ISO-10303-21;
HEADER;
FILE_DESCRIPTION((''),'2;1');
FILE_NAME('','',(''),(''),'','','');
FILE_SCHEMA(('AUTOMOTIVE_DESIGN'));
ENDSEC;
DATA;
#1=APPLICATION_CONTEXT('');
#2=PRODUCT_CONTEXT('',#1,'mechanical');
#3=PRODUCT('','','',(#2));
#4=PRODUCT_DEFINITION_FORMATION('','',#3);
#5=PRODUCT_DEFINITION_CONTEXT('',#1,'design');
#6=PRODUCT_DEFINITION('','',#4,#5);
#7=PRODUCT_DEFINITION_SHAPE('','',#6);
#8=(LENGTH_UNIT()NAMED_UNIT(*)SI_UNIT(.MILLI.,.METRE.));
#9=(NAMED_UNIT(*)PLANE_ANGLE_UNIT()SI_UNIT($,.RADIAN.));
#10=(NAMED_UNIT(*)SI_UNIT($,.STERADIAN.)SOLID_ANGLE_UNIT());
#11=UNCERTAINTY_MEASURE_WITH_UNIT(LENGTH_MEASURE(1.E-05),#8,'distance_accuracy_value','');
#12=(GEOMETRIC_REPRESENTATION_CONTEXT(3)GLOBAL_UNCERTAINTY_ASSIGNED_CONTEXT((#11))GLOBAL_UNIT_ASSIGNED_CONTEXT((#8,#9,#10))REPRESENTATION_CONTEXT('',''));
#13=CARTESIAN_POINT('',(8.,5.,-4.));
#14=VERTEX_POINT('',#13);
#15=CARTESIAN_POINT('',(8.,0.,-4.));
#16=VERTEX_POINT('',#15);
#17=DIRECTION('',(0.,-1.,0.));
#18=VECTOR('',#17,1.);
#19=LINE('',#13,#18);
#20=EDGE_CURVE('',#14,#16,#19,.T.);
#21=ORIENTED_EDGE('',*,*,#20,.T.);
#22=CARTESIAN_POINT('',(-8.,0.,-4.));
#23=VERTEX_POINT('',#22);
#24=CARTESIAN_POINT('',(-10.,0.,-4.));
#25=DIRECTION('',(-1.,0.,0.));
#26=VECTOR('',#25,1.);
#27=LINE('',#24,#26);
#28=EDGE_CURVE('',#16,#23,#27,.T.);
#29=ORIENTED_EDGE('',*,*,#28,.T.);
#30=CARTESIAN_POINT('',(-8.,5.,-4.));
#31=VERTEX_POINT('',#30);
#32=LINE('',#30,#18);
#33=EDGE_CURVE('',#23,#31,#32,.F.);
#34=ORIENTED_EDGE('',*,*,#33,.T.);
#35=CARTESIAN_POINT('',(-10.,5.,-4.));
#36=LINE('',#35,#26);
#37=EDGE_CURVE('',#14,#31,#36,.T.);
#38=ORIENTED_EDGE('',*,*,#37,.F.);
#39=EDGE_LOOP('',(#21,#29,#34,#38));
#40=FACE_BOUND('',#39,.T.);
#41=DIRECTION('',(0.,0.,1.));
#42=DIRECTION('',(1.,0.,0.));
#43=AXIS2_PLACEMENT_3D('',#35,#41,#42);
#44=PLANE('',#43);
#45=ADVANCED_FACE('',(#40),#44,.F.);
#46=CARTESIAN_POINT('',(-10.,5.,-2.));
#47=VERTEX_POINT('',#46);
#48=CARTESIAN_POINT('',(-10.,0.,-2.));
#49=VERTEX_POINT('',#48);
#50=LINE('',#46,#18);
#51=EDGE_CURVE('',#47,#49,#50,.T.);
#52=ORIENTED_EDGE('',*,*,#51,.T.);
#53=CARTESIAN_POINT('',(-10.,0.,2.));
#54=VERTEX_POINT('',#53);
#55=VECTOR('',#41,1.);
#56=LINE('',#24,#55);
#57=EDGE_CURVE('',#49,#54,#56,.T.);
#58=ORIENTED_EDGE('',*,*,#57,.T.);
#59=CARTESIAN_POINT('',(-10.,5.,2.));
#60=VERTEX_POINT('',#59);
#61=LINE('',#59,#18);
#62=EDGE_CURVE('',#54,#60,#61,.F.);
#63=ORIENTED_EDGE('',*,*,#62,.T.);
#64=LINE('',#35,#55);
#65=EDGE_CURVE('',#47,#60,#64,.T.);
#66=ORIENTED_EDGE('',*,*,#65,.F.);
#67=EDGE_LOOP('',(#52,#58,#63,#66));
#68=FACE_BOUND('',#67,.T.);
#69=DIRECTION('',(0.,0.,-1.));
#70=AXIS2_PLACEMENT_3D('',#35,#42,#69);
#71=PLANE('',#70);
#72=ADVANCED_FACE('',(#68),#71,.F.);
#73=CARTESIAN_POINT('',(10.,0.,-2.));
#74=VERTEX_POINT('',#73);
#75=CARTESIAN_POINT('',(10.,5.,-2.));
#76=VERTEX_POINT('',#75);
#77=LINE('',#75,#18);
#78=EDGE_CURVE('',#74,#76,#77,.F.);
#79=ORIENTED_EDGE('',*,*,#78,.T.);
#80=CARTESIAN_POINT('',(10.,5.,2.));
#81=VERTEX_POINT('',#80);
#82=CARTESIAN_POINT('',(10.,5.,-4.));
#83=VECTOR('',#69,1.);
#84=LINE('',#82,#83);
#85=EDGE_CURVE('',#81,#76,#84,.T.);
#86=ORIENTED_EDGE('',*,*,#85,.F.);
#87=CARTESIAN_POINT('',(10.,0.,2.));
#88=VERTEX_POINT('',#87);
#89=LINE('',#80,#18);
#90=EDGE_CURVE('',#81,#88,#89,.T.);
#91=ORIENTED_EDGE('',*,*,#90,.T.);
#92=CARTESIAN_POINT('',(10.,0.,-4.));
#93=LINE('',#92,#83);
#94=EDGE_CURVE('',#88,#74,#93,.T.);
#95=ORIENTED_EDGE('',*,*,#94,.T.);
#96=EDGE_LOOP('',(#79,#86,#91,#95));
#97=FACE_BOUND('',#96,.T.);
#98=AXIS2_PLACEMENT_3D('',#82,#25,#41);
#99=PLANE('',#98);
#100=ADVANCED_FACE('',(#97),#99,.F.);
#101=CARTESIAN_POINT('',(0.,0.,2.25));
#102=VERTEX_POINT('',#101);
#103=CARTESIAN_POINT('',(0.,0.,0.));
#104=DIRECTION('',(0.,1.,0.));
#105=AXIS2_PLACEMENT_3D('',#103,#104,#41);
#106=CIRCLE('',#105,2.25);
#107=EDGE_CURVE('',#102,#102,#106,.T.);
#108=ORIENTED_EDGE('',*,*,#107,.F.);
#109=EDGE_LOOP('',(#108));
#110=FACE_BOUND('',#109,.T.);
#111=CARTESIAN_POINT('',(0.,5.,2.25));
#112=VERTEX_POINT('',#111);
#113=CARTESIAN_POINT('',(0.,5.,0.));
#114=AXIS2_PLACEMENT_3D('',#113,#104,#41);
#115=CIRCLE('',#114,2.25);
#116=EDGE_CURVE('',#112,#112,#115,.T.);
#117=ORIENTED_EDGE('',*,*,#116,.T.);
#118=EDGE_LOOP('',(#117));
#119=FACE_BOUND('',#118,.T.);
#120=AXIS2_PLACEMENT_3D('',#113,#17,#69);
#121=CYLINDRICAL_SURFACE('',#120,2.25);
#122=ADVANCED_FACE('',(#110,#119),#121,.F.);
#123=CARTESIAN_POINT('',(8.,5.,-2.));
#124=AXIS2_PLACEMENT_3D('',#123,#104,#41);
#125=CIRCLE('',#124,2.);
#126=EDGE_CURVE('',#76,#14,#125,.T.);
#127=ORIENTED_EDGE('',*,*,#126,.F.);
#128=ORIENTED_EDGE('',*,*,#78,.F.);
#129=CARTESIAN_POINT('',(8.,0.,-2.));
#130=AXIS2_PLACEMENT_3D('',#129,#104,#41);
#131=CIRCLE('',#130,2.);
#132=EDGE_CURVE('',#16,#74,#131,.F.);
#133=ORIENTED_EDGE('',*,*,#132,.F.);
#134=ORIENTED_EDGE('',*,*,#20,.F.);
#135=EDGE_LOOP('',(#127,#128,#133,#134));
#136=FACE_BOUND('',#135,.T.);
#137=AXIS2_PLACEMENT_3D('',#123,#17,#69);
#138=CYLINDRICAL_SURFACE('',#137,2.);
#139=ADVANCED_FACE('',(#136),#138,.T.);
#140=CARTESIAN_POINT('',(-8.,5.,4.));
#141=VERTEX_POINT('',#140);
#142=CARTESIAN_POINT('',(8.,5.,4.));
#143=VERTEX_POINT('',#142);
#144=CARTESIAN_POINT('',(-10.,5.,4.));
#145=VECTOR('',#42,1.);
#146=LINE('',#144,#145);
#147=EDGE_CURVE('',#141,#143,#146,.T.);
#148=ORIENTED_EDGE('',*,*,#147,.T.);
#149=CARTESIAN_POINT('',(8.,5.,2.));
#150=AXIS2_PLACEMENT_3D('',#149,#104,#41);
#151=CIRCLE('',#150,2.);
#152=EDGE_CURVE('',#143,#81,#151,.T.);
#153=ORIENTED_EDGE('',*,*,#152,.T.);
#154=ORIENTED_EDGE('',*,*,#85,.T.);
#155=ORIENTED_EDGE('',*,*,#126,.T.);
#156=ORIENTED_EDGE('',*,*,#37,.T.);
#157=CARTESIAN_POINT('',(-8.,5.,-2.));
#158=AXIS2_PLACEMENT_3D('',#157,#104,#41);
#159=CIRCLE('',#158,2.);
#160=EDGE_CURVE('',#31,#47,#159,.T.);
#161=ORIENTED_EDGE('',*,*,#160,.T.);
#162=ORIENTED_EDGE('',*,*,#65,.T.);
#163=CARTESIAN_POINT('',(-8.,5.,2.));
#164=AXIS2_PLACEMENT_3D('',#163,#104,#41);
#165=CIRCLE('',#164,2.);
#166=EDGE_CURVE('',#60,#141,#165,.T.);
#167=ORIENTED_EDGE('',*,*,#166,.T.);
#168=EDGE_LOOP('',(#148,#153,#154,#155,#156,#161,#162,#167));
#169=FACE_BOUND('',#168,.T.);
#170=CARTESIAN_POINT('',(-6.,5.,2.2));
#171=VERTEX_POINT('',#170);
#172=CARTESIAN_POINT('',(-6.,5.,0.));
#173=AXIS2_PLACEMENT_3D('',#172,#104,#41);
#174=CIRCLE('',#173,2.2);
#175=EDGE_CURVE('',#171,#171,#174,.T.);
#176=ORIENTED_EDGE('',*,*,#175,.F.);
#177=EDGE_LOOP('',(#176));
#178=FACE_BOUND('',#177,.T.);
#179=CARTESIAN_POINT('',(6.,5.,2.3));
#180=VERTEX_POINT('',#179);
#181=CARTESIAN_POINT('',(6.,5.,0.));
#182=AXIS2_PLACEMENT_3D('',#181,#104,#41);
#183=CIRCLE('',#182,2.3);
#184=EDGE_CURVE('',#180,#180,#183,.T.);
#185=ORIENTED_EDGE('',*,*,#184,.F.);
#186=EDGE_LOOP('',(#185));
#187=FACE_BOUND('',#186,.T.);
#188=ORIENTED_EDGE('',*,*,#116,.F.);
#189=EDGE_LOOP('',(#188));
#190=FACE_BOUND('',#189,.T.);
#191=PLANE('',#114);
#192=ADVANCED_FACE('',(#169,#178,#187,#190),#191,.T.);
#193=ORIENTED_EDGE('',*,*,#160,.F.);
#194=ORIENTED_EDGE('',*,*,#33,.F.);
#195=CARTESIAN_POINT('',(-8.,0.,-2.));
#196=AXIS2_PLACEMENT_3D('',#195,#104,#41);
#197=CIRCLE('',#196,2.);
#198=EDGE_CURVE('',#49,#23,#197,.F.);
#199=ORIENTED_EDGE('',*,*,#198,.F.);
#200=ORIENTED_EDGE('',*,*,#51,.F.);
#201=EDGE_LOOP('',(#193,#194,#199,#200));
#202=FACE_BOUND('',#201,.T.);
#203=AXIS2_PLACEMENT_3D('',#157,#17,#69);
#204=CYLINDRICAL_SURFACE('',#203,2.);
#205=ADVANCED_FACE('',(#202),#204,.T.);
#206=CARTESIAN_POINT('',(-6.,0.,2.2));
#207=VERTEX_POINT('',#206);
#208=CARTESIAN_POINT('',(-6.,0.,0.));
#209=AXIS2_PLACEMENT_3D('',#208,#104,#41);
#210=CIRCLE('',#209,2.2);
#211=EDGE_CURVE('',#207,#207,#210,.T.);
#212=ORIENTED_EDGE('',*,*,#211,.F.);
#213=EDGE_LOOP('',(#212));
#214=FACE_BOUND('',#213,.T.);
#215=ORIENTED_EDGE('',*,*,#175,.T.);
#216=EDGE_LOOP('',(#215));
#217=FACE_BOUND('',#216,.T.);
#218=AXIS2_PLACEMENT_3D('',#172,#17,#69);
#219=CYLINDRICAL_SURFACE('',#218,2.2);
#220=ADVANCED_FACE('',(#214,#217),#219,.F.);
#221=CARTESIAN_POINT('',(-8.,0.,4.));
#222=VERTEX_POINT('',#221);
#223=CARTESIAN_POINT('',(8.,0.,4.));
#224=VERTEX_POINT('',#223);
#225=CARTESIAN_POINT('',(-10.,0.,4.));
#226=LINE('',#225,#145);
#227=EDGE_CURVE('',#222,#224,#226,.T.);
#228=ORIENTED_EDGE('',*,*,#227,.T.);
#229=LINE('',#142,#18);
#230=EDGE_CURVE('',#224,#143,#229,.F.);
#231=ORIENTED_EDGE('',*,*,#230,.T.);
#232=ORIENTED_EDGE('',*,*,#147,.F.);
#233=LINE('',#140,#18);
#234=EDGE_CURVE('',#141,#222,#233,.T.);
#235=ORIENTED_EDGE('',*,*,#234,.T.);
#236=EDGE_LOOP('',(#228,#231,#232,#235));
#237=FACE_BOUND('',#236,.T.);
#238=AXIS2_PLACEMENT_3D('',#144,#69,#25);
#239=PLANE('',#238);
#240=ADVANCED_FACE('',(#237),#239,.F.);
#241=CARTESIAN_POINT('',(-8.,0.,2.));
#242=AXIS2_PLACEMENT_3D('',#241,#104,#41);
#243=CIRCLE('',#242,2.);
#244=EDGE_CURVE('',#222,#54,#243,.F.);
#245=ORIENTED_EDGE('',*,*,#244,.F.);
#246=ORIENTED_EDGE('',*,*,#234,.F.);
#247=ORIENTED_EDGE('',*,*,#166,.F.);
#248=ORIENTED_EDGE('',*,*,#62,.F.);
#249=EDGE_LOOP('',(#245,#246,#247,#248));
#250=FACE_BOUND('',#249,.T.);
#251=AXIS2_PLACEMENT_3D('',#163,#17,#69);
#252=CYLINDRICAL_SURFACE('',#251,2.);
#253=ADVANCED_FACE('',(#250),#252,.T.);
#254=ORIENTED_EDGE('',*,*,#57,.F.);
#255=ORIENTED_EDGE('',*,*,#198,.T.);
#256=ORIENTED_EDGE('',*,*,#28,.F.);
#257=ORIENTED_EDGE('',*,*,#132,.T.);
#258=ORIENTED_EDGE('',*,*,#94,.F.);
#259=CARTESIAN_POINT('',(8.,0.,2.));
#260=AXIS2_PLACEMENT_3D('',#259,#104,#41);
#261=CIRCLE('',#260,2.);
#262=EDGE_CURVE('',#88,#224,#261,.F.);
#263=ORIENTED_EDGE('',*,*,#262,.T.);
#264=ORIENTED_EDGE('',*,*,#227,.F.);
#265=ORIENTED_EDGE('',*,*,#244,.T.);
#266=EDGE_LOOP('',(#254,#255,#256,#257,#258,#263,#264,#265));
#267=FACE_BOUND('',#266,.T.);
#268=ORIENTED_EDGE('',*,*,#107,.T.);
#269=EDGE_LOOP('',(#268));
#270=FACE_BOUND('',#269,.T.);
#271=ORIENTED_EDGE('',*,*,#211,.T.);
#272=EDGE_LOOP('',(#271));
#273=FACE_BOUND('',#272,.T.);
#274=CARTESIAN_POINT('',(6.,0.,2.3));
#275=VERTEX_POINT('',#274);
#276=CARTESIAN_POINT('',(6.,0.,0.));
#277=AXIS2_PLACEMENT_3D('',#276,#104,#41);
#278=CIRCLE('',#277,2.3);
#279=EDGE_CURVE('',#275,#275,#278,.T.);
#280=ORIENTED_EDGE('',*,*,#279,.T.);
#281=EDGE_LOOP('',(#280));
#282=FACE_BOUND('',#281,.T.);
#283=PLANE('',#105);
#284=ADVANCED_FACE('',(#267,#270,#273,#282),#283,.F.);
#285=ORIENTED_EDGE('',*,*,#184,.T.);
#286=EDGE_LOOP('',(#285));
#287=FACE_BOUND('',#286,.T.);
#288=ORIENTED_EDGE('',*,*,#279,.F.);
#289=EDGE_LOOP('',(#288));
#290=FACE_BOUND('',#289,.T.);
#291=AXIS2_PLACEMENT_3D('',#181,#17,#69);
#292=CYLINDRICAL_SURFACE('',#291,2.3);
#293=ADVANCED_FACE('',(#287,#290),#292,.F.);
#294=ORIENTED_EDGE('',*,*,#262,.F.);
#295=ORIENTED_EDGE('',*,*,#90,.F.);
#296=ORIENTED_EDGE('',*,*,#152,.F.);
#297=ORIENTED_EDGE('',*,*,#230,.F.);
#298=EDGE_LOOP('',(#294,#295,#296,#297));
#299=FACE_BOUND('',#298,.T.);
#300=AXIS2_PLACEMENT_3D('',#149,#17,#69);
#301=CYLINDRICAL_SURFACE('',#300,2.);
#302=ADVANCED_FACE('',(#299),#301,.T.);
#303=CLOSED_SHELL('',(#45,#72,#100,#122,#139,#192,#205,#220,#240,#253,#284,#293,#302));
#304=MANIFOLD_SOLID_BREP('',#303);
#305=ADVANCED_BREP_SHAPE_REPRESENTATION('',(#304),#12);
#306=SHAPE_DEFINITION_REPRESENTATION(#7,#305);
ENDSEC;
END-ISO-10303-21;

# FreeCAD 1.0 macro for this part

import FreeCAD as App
import Part
import Sketcher

V = App.Vector


def edges_at(feature, points):
    """Names of the edges that pass closest to the given points."""
    edges = feature.Shape.Edges
    near = lambda p: min(range(len(edges)), key=lambda i: edges[i].distToShape(Part.Vertex(*p))[0])
    return sorted({f"Edge{near(p) + 1}" for p in points})

doc = App.newDocument("Part")
body = doc.addObject("PartDesign::Body", "Body")

sketch1 = doc.addObject("Sketcher::SketchObject", "Sketch")
body.addObject(sketch1)
sketch1.AttachmentSupport = (doc.XZ_Plane, [""])
sketch1.MapMode = "FlatFace"
sketch1.addGeometry([
    Part.LineSegment(V(-10, -4, 0), V(-10, 4, 0)),
    Part.LineSegment(V(-10, 4, 0), V(10, 4, 0)),
    Part.LineSegment(V(10, 4, 0), V(10, -4, 0)),
    Part.LineSegment(V(10, -4, 0), V(-10, -4, 0)),
    Part.Circle(V(-6, 0, 0), V(0, 0, 1), 2.2),
    Part.Circle(V(0, 0, 0), V(0, 0, 1), 2.2),
    Part.Circle(V(6, 0, 0), V(0, 0, 1), 2.3),
], False)
sketch1.addConstraint([
    Sketcher.Constraint("Coincident", 0, 2, 1, 1),
    Sketcher.Constraint("Coincident", 1, 2, 2, 1),
    Sketcher.Constraint("Coincident", 2, 2, 3, 1),
    Sketcher.Constraint("Coincident", 3, 2, 0, 1),
    Sketcher.Constraint("Vertical", 0),
    Sketcher.Constraint("Horizontal", 1),
    Sketcher.Constraint("Vertical", 2),
    Sketcher.Constraint("Horizontal", 3),
    Sketcher.Constraint("Coincident", 5, 3, -1, 1),
    Sketcher.Constraint("Symmetric", 4, 3, 6, 3, -1, 1),
    Sketcher.Constraint("Symmetric", 0, 2, 2, 2, -1, 1),
    Sketcher.Constraint("PointOnObject", 4, 3, -1),
    Sketcher.Constraint("Diameter", 4, 4.4),
    Sketcher.Constraint("Diameter", 5, 4.5),
    Sketcher.Constraint("Diameter", 6, 4.6),
    Sketcher.Constraint("DistanceX", 1, 1, 1, 2, 20.0),
    Sketcher.Constraint("DistanceY", 0, 1, 0, 2, 8.0),
    Sketcher.Constraint("DistanceX", 4, 3, -1, 1, 6.0),
])
pad1 = doc.addObject("PartDesign::Pad", "Pad")
body.addObject(pad1)
pad1.Profile = sketch1
pad1.Length = 5
pad1.Reversed = True
doc.recompute()

fillet = doc.addObject("PartDesign::Fillet", "Fillet")
body.addObject(fillet)
fillet.Base = (pad1, edges_at(pad1, [
    (10, 2.5, 4),
    (-10, 2.5, 4),
    (-10, 2.5, -4),
    (10, 2.5, -4),
]))
fillet.Radius = 2

doc.recompute()
